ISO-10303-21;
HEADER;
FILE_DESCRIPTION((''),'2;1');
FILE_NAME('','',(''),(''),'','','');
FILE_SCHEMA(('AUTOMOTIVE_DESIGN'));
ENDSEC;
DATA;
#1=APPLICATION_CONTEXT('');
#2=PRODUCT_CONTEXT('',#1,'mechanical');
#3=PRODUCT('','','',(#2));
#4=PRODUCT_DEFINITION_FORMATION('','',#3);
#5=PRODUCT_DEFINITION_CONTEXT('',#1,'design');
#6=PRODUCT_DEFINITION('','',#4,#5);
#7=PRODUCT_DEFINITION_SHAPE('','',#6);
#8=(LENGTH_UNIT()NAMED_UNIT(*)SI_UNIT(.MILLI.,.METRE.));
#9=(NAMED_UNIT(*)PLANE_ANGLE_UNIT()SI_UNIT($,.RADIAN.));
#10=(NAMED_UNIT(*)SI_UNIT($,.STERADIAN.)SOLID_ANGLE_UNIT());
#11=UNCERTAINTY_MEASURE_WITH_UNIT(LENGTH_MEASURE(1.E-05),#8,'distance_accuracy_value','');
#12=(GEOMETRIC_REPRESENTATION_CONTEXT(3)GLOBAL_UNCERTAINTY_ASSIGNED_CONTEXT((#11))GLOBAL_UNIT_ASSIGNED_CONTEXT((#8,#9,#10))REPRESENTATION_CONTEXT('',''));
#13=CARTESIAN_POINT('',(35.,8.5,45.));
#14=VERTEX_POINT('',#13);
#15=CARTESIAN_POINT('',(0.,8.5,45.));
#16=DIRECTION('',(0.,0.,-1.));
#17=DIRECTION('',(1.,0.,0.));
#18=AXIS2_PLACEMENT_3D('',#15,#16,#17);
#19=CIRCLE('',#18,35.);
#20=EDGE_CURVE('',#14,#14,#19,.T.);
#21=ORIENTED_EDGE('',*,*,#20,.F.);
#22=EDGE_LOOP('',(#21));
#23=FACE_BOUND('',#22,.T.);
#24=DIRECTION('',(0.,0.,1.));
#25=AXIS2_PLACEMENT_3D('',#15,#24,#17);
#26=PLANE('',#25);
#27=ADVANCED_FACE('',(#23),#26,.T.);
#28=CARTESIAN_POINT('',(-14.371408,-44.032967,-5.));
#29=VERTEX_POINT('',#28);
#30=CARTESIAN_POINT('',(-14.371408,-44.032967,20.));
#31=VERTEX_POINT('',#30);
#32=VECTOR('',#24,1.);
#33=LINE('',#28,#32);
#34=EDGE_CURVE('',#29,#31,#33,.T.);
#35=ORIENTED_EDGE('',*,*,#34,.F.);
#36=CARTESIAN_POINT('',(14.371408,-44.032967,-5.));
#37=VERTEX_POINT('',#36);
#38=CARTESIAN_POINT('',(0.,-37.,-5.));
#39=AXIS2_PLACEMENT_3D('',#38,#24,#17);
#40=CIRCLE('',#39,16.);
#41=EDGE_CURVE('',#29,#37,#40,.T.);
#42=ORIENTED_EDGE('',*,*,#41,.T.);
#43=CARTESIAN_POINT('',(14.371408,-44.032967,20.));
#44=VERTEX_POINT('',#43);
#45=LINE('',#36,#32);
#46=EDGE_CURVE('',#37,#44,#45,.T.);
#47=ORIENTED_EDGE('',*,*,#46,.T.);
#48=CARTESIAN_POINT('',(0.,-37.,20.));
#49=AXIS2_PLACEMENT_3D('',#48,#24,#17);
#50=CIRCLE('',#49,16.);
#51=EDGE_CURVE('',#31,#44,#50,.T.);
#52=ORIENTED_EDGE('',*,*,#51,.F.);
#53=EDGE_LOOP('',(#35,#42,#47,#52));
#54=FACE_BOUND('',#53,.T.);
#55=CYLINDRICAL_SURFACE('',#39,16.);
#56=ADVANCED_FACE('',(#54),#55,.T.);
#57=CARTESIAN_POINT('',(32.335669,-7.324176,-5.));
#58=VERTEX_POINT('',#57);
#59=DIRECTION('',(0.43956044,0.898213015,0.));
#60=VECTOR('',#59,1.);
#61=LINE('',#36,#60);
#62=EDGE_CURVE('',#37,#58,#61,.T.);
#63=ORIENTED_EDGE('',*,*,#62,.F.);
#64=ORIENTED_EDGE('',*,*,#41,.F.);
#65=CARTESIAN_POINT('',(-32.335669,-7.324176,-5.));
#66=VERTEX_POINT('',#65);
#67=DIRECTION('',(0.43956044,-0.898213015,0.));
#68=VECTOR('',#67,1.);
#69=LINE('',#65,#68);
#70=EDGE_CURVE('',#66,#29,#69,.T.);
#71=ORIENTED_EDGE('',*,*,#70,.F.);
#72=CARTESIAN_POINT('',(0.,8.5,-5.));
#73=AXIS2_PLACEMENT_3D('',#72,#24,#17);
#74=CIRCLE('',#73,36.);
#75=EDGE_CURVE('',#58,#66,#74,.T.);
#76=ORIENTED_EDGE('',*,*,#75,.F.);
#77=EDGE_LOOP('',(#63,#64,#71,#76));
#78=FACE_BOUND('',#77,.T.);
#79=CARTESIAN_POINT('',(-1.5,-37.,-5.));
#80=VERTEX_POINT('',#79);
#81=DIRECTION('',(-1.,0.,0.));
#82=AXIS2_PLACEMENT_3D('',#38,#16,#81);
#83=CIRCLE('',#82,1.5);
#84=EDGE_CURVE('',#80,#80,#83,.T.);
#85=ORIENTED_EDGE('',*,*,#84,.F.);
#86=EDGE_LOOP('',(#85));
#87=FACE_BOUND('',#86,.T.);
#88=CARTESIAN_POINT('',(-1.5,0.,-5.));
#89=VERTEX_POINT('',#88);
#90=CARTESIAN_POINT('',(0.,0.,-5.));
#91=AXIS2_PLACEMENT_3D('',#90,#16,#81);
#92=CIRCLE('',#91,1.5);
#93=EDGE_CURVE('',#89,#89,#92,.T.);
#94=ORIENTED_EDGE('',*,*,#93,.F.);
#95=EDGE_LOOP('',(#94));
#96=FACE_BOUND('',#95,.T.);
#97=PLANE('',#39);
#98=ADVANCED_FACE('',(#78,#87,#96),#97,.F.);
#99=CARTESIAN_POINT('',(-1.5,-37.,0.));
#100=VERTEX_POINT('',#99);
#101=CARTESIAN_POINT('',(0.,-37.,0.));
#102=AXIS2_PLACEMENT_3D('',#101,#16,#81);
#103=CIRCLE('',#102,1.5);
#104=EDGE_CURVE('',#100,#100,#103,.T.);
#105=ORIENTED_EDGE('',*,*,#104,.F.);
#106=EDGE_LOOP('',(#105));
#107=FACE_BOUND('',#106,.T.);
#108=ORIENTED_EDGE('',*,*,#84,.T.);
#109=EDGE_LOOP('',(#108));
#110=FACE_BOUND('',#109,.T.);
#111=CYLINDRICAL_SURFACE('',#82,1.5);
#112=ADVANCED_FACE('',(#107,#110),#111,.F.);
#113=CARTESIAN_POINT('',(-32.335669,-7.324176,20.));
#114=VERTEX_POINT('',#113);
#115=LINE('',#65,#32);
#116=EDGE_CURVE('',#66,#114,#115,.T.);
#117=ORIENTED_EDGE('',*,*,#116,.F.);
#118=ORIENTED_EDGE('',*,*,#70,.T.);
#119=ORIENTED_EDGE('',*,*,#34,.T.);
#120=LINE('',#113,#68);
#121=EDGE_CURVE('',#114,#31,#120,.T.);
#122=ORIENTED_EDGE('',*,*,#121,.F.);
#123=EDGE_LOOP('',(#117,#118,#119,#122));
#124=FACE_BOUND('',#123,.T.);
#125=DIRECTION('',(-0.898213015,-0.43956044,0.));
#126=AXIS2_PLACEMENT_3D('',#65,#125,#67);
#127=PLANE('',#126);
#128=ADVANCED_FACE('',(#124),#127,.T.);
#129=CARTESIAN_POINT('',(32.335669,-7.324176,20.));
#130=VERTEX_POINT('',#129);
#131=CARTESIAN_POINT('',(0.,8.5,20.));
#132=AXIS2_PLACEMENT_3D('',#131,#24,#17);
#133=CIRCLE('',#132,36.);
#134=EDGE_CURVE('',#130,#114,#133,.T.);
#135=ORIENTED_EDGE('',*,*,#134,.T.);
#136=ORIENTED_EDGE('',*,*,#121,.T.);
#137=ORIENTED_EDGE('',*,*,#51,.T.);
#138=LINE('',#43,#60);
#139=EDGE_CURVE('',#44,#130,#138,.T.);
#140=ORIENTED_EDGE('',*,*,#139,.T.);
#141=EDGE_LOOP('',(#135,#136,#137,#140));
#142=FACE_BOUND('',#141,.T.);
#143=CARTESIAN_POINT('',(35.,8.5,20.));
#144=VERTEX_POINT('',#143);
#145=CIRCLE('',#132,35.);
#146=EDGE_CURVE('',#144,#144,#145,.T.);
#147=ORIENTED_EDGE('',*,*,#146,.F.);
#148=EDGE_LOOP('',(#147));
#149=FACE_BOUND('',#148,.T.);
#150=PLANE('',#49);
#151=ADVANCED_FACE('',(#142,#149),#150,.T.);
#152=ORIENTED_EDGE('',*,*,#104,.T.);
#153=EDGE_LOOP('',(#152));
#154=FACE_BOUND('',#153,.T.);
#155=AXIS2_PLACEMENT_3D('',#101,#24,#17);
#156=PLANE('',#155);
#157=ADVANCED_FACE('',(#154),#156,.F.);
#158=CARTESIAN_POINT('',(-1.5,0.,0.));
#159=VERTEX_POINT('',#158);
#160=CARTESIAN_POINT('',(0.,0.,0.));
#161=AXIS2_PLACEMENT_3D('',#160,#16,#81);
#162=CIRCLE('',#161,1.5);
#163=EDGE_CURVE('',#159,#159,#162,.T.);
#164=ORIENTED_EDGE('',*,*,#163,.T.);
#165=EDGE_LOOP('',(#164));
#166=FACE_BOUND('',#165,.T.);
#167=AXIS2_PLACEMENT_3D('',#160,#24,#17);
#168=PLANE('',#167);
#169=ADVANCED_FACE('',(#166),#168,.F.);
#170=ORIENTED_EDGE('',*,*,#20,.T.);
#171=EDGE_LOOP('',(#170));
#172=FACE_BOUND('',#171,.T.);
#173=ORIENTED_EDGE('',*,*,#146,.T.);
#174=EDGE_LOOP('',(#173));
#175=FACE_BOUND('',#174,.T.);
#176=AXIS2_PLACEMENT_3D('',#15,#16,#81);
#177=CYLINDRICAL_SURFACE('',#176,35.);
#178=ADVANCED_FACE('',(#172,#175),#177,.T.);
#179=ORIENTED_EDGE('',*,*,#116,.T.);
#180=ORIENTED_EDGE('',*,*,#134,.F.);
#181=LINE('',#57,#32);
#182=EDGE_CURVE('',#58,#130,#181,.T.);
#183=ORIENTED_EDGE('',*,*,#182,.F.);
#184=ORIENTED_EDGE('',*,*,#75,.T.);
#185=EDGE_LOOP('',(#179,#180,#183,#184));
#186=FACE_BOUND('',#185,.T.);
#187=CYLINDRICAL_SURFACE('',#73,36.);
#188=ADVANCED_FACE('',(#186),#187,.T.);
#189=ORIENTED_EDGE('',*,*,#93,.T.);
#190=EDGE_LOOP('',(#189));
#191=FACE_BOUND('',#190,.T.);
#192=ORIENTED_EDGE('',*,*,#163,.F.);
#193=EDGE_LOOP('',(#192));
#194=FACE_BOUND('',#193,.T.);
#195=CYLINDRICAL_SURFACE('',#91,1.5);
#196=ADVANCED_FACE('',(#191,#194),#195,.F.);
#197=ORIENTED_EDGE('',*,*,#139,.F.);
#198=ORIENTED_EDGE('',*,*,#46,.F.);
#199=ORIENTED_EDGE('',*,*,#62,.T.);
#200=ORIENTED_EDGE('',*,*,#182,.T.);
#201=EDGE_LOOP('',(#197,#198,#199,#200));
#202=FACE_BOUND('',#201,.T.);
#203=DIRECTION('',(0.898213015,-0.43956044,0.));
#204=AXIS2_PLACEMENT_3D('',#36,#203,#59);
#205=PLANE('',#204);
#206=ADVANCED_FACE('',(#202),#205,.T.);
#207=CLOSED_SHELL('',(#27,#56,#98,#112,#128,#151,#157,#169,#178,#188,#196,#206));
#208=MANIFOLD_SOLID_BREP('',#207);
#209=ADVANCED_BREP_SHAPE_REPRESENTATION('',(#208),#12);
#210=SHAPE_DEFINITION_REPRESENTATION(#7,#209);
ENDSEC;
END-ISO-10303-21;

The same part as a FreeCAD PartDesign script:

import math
import FreeCAD as App
import Part
import Sketcher

V = App.Vector
Q = App.Units.Quantity

doc = App.newDocument("Part")
body = doc.addObject("PartDesign::Body", "Body")

# Sketch on XY plane
sketch1 = body.newObject("Sketcher::SketchObject", "Sketch")
sketch1.AttachmentSupport = (doc.getObject("XY_Plane"), [""])
sketch1.MapMode = "FlatFace"
sketch1.AttachmentOffset = App.Placement(V(0, 0, 20), App.Rotation())
sketch1.addGeometry([
    Part.LineSegment(V(14, -44, 0), V(32, -7, 0)),
    Part.ArcOfCircle(Part.Circle(V(0, 8, 0), V(0, 0, 1), 36), math.radians(-26), math.radians(206)),
    Part.LineSegment(V(-32, -7, 0), V(-14, -44, 0)),
    Part.ArcOfCircle(Part.Circle(V(0, -37, 0), V(0, 0, 1), 16), math.radians(-154), math.radians(-26)),
], False)
sketch1.addConstraint([
    Sketcher.Constraint("Tangent", 0, 2, 1, 1),
    Sketcher.Constraint("Tangent", 1, 2, 2, 1),
    Sketcher.Constraint("Tangent", 2, 2, 3, 1),
    Sketcher.Constraint("Tangent", 3, 2, 0, 1),
    Sketcher.Constraint("Symmetric", 0, 2, 1, 2, -2),
    Sketcher.Constraint("Radius", 1, Q("36 mm")),
    Sketcher.Constraint("Radius", 3, Q("16 mm")),
    Sketcher.Constraint("DistanceY", 3, 3, -1, 1, Q("37 mm")),
    Sketcher.Constraint("DistanceY", -1, 1, 1, 3, Q("8.5 mm")),
])
pad1 = body.newObject("PartDesign::Pad", "Pad")
pad1.Profile = sketch1
pad1.Length = 25
pad1.Reversed = True

# Sketch on XY plane
sketch2 = body.newObject("Sketcher::SketchObject", "Sketch001")
sketch2.AttachmentSupport = (doc.getObject("XY_Plane"), [""])
sketch2.MapMode = "FlatFace"
sketch2.AttachmentOffset = App.Placement(V(0, 0, 20), App.Rotation())
sketch2.addGeometry(Part.Circle(V(0, 8, 0), V(0, 0, 1), 35), False)
sketch2.addConstraint([
    Sketcher.Constraint("PointOnObject", 0, 3, -2),
    Sketcher.Constraint("Diameter", 0, Q("70 mm")),
    Sketcher.Constraint("DistanceY", -1, 1, 0, 3, Q("8.5 mm")),
])
pad2 = body.newObject("PartDesign::Pad", "Pad001")
pad2.Profile = sketch2
pad2.Length = 25

# Sketch on XY plane
sketch3 = body.newObject("Sketcher::SketchObject", "Sketch002")
sketch3.AttachmentSupport = (doc.getObject("XY_Plane"), [""])
sketch3.MapMode = "FlatFace"
sketch3.AttachmentOffset = App.Placement(V(0, 0, -5), App.Rotation())
sketch3.addGeometry([
    Part.Circle(V(0, 0, 0), V(0, 0, 1), 1.5),
    Part.Circle(V(0, -37, 0), V(0, 0, 1), 1.5),
], False)
sketch3.addConstraint([
    Sketcher.Constraint("Coincident", 0, 3, -1, 1),
    Sketcher.Constraint("Equal", 0, 1),
    Sketcher.Constraint("PointOnObject", 1, 3, -2),
    Sketcher.Constraint("Diameter", 0, Q("3 mm")),
    Sketcher.Constraint("DistanceY", 1, 3, -1, 1, Q("37 mm")),
])
doc.recompute()
hole = body.newObject("PartDesign::Hole", "Hole")
hole.Profile = sketch3
hole.ThreadType = "None"
hole.Diameter = 3
hole.DepthType = "Dimension"
hole.Depth = 5
hole.DrillPoint = "Flat"
hole.Reversed = True

doc.recompute()
